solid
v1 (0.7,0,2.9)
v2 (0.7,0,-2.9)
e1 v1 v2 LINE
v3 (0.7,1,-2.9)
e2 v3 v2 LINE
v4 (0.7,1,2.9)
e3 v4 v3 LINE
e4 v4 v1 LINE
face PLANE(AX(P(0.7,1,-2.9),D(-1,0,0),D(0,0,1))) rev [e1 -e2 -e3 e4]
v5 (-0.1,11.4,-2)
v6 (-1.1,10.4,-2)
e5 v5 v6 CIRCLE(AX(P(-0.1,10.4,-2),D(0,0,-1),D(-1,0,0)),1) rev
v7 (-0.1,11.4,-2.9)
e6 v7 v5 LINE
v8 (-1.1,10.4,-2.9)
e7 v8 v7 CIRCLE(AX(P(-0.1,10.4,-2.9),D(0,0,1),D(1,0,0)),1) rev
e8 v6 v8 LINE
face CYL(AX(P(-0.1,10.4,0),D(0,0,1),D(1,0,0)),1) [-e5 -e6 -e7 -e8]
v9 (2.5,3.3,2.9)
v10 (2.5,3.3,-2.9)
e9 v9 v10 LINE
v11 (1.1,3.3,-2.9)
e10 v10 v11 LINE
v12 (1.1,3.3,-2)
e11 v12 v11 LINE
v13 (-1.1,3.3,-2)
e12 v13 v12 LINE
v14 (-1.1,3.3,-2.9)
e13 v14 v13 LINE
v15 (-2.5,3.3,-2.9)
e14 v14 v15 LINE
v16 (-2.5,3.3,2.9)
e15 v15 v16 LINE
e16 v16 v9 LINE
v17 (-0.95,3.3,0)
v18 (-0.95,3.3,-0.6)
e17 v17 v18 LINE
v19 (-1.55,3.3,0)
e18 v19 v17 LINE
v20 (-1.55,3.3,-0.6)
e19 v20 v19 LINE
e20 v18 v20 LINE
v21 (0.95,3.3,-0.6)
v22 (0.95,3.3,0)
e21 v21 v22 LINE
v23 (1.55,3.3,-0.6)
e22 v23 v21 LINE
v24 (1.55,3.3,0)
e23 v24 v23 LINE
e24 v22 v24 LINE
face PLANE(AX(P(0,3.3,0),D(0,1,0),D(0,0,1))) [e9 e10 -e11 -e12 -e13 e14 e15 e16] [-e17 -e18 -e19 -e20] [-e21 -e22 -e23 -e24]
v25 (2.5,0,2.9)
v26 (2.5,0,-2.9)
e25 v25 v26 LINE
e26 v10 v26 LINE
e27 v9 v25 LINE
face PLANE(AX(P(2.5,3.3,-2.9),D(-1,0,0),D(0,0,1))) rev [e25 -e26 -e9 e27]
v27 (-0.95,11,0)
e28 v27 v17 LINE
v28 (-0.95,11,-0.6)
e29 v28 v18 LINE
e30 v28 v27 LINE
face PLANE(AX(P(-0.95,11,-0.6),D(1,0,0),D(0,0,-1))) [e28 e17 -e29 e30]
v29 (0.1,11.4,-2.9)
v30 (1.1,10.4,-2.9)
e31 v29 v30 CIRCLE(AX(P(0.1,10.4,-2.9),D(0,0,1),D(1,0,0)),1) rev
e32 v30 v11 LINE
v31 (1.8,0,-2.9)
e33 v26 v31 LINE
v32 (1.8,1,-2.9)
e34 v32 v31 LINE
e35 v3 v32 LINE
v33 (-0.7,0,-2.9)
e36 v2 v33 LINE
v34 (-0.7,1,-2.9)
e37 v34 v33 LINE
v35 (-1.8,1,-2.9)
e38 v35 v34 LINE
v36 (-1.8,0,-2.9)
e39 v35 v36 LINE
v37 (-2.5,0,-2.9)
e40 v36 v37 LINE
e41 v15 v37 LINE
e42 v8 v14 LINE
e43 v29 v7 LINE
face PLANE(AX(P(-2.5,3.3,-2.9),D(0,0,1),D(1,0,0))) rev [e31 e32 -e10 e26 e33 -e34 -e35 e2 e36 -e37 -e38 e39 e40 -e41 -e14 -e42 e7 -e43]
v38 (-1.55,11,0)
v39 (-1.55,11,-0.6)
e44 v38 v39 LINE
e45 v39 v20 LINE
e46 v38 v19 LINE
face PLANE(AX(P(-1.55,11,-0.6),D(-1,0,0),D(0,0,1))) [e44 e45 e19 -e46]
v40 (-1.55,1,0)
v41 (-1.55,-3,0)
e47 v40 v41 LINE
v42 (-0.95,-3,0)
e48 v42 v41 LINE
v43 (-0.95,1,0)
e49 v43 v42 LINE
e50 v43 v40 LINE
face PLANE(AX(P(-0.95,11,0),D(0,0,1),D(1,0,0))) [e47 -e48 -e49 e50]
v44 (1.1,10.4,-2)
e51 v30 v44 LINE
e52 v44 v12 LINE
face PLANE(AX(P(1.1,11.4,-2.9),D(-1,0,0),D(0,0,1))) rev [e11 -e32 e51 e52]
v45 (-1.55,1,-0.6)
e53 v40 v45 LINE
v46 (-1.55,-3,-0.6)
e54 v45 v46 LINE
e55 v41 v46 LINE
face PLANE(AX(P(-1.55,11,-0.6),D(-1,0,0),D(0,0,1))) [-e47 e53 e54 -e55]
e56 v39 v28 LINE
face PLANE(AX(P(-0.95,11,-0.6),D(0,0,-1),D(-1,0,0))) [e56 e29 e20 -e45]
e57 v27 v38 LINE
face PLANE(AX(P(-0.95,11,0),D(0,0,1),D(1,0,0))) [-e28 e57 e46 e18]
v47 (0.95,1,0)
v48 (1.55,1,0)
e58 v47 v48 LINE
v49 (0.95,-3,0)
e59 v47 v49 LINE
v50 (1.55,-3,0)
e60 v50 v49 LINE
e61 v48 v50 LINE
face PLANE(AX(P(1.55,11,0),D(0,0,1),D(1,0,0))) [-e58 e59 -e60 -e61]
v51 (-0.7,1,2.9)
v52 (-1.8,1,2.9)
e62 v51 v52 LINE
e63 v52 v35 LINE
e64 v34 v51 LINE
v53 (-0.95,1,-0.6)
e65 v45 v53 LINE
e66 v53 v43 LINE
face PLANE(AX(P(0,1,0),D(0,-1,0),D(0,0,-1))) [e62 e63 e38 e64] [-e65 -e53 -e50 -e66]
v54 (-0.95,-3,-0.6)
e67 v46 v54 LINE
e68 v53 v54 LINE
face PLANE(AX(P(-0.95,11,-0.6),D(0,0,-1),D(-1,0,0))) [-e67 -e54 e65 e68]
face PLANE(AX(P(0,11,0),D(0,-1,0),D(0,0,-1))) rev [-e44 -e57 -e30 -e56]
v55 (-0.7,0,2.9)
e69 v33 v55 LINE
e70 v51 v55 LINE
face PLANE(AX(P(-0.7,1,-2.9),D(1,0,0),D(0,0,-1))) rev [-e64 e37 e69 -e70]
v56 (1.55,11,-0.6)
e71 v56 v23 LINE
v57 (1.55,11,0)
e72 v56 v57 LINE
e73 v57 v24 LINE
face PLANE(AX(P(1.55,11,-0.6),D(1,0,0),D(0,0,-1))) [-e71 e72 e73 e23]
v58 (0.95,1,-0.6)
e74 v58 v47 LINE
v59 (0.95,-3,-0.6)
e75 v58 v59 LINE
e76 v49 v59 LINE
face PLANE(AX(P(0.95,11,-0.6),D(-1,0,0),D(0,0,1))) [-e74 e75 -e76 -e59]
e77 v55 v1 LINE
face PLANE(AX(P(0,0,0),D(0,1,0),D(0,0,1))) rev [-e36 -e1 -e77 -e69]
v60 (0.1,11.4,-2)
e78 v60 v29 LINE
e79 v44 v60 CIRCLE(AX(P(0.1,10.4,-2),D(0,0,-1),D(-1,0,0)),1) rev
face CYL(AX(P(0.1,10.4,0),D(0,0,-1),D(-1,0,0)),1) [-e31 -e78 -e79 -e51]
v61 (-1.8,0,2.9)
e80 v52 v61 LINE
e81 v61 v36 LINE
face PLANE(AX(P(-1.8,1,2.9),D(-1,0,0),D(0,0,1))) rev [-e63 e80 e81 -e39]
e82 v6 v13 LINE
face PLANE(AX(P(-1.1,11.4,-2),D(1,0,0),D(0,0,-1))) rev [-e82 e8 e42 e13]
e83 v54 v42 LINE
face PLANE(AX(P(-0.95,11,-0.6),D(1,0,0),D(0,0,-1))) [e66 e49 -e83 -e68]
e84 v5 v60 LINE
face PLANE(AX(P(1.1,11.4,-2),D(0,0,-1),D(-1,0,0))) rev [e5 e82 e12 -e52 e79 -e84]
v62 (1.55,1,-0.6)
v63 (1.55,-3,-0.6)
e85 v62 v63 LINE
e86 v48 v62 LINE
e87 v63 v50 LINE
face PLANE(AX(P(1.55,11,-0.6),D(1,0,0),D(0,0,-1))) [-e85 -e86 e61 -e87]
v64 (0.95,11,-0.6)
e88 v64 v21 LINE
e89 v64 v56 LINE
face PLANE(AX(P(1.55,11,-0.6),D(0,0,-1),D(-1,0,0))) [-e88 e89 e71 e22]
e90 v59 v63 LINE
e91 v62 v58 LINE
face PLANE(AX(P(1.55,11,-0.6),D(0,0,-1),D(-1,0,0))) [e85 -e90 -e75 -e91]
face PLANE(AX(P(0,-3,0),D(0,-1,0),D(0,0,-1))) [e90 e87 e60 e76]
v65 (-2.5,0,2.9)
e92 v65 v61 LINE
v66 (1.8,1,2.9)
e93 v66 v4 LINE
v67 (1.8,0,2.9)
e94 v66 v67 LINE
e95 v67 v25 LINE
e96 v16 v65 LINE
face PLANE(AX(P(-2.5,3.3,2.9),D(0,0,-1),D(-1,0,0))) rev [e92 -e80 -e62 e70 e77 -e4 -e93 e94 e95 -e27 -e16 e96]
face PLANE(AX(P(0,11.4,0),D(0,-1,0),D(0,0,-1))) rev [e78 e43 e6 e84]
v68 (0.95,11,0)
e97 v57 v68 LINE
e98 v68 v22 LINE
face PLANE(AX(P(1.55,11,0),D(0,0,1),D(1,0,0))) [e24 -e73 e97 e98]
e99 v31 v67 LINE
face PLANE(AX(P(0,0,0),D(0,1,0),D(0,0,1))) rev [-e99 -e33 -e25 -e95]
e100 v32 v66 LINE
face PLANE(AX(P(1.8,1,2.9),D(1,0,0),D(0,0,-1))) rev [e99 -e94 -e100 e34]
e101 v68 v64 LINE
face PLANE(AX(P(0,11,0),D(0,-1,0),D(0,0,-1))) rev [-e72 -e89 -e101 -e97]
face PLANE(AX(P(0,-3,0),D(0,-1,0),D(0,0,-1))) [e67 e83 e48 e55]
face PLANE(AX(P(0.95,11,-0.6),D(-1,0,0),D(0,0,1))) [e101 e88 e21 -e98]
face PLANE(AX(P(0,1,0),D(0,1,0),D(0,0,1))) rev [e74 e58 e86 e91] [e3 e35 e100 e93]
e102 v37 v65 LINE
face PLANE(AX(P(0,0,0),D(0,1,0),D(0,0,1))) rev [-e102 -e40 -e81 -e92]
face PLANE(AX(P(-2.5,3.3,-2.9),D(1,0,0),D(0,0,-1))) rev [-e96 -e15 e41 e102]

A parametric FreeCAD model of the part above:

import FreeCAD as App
import Part
import Sketcher
from FreeCAD import Vector
Q = App.Units.Quantity


def edges_at(feature, points):
    """Names of the edges that pass closest to the given points."""
    edges = feature.Shape.Edges
    near = lambda p: min(range(len(edges)), key=lambda i: edges[i].distToShape(Part.Vertex(*p))[0])
    return sorted({f"Edge{near(p) + 1}" for p in points})


def add_polygon(sketch, points):
    """Adds a closed chain of lines whose ends are joined by coincident constraints."""
    first, n = sketch.GeometryCount, len(points)
    for a, b in zip(points, points[1:] + points[:1]):
        sketch.addGeometry(Part.LineSegment(App.Vector(*a, 0), App.Vector(*b, 0)), False)
    for i in range(n):
        sketch.addConstraint(Sketcher.Constraint("Coincident", first + i, 2, first + (i + 1) % n, 1))

doc = App.newDocument("Part")
body = doc.addObject("PartDesign::Body", "Body")

sketch1 = doc.addObject("Sketcher::SketchObject", "Sketch")
body.addObject(sketch1)
sketch1.AttachmentSupport = (doc.XZ_Plane, [""])
sketch1.MapMode = "FlatFace"
add_polygon(sketch1, [(-2, -3), (-2, 3), (2, 3), (2, -3)])
sketch1.addConstraint([
    Sketcher.Constraint("Vertical", 0),
    Sketcher.Constraint("Horizontal", 1),
    Sketcher.Constraint("Vertical", 2),
    Sketcher.Constraint("Horizontal", 3),
    Sketcher.Constraint("Symmetric", 0, 2, 2, 2, -1, 1),
    Sketcher.Constraint("DistanceX", 1, 1, 1, 2, Q("5 mm")),
    Sketcher.Constraint("DistanceY", 0, 1, 0, 2, Q("5.8 mm")),
])
pad1 = doc.addObject("PartDesign::Pad", "Pad")
body.addObject(pad1)
pad1.Profile = sketch1
pad1.Length = 3.3
pad1.Reversed = True

sketch2 = doc.addObject("Sketcher::SketchObject", "Sketch001")
body.addObject(sketch2)
sketch2.AttachmentSupport = (doc.XZ_Plane, [""])
sketch2.MapMode = "FlatFace"
add_polygon(sketch2, [(-1.8, 2.9), (-1.8, -2.9), (-0.7, -2.9), (-0.7, 2.9)])
add_polygon(sketch2, [(0.7, 2.9), (0.7, -2.9), (1.8, -2.9), (1.8, 2.9)])
sketch2.addConstraint([
    Sketcher.Constraint("Vertical", 0),
    Sketcher.Constraint("Horizontal", 1),
    Sketcher.Constraint("Vertical", 2),
    Sketcher.Constraint("Horizontal", 3),
    Sketcher.Constraint("Vertical", 4),
    Sketcher.Constraint("Horizontal", 5),
    Sketcher.Constraint("Vertical", 6),
    Sketcher.Constraint("Horizontal", 7),
    Sketcher.Constraint("Symmetric", 2, 2, 4, 2, -1, 1),
    Sketcher.Constraint("Symmetric", 0, 2, 6, 2, -1, 1),
    Sketcher.Constraint("Horizontal", 1, 2, 4, 2),
    Sketcher.Constraint("DistanceX", 1, 1, 1, 2, Q("1.1 mm")),
    Sketcher.Constraint("DistanceY", 0, 2, 0, 1, Q("5.8 mm")),
    Sketcher.Constraint("DistanceX", 0, 2, -1, 1, Q("1.8 mm")),
])
pocket1 = doc.addObject("PartDesign::Pocket", "Pocket")
body.addObject(pocket1)
pocket1.Profile = sketch2
pocket1.Length = 1

sketch3 = doc.addObject("Sketcher::SketchObject", "Sketch002")
body.addObject(sketch3)
sketch3.AttachmentSupport = (doc.XZ_Plane, [""])
sketch3.MapMode = "FlatFace"
sketch3.AttachmentOffset = App.Placement(Vector(0, 0, -3.3), App.Rotation())
add_polygon(sketch3, [(-1.1, -2.9), (-1.1, -2), (1.1, -2), (1.1, -2.9)])
sketch3.addConstraint([
    Sketcher.Constraint("Vertical", 0),
    Sketcher.Constraint("Horizontal", 1),
    Sketcher.Constraint("Vertical", 2),
    Sketcher.Constraint("Horizontal", 3),
    Sketcher.Constraint("DistanceX", 1, 1, 1, 2, Q("2.2 mm")),
    Sketcher.Constraint("DistanceY", 0, 1, 0, 2, Q("0.9 mm")),
    Sketcher.Constraint("DistanceY", 0, 2, -1, 1, Q("2 mm")),
    Sketcher.Constraint("DistanceX", 0, 2, -1, 1, Q("1.1 mm")),
])
pad2 = doc.addObject("PartDesign::Pad", "Pad001")
body.addObject(pad2)
pad2.Profile = sketch3
pad2.Length = 8.1
pad2.Reversed = True
doc.recompute()

fillet = doc.addObject("PartDesign::Fillet", "Fillet")
body.addObject(fillet)
fillet.Base = (pad2, edges_at(pad2, [(-1.1, 11.4, -2.45)]))
fillet.Radius = 1
doc.recompute()

fillet2 = doc.addObject("PartDesign::Fillet", "Fillet001")
body.addObject(fillet2)
fillet2.Base = (fillet, edges_at(fillet, [(1.1, 11.4, -2.45)]))
fillet2.Radius = 1

sketch4 = doc.addObject("Sketcher::SketchObject", "Sketch003")
body.addObject(sketch4)
sketch4.AttachmentSupport = (doc.XZ_Plane, [""])
sketch4.MapMode = "FlatFace"
sketch4.AttachmentOffset = App.Placement(Vector(0, 0, -1), App.Rotation())
add_polygon(sketch4, [(0.9, 0), (0.9, -0.6), (1.6, -0.6), (1.6, 0)])
add_polygon(sketch4, [(-1.6, 0), (-1.6, -0.6), (-0.9, -0.6), (-0.9, 0)])
sketch4.addConstraint([
    Sketcher.Constraint("Vertical", 0),
    Sketcher.Constraint("Horizontal", 1),
    Sketcher.Constraint("Vertical", 2),
    Sketcher.Constraint("Horizontal", 3),
    Sketcher.Constraint("Vertical", 4),
    Sketcher.Constraint("Horizontal", 5),
    Sketcher.Constraint("Vertical", 6),
    Sketcher.Constraint("Horizontal", 7),
    Sketcher.Constraint("Symmetric", 3, 2, 6, 2, -1, 1),
    Sketcher.Constraint("Symmetric", 1, 2, 4, 2, -2),
    Sketcher.Constraint("PointOnObject", 2, 2, -1),
    Sketcher.Constraint("Equal", 7, 0),
    Sketcher.Constraint("DistanceX", 1, 1, 1, 2, Q("0.6 mm")),
    Sketcher.Constraint("DistanceX", 4, 2, 0, 2, Q("2.5 mm")),
])
pad3 = doc.addObject("PartDesign::Pad", "Pad002")
body.addObject(pad3)
pad3.Profile = sketch4
pad3.Type = "TwoLengths"
pad3.Length = 4
pad3.Length2 = 10

doc.recompute()
